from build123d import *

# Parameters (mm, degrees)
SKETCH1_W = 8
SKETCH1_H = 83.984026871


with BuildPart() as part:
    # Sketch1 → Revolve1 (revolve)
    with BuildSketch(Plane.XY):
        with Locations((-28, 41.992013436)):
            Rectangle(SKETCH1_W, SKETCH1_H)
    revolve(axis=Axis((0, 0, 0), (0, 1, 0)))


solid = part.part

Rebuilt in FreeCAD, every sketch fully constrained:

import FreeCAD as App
import Part
import Sketcher

V = App.Vector
Q = App.Units.Quantity


def add_polygon(sketch, points):
    """Adds a closed chain of lines whose ends are joined by coincident constraints."""
    first, n = sketch.GeometryCount, len(points)
    for a, b in zip(points, points[1:] + points[:1]):
        sketch.addGeometry(Part.LineSegment(App.Vector(*a, 0), App.Vector(*b, 0)), False)
    for i in range(n):
        sketch.addConstraint(Sketcher.Constraint("Coincident", first + i, 2, first + (i + 1) % n, 1))

doc = App.newDocument("Part")
body = doc.addObject("PartDesign::Body", "Body")

sketch1 = body.newObject("Sketcher::SketchObject", "Sketch")
sketch1.AttachmentSupport = (doc.getObject("XY_Plane"), [""])
sketch1.MapMode = "FlatFace"
add_polygon(sketch1, [(-32, 84), (-32, 0), (-24, 0), (-24, 84)])
sketch1.addConstraint([
    Sketcher.Constraint("Vertical", 0),
    Sketcher.Constraint("Horizontal", 1),
    Sketcher.Constraint("Vertical", 2),
    Sketcher.Constraint("Horizontal", 3),
    Sketcher.Constraint("PointOnObject", 0, 2, -1),
    Sketcher.Constraint("DistanceX", 1, 1, 1, 2, Q("8 mm")),
    Sketcher.Constraint("DistanceX", 0, 2, -1, 1, Q("32 mm")),
    Sketcher.Constraint("DistanceY", 0, 2, 0, 1, Q("83.984027 mm")),
])
revolution = body.newObject("PartDesign::Revolution", "Revolution")
revolution.Profile = sketch1
revolution.ReferenceAxis = (sketch1, ["V_Axis"])
revolution.Angle = 360

doc.recompute()
